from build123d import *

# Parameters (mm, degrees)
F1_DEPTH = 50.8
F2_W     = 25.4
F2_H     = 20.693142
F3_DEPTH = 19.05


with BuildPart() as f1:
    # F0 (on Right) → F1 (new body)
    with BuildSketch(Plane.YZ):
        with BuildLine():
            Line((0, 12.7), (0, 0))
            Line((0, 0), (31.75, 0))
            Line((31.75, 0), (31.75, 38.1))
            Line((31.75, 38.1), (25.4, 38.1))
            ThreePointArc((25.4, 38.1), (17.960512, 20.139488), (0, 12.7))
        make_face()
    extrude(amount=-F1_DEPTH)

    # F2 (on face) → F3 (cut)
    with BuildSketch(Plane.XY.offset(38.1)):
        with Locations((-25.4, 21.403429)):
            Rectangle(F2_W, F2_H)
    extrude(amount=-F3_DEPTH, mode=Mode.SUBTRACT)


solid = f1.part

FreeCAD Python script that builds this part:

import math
import FreeCAD as App
import Part
import Sketcher
from FreeCAD import Vector
Q = App.Units.Quantity


def add_polygon(sketch, points):
    """Adds a closed chain of lines whose ends are joined by coincident constraints."""
    first, n = sketch.GeometryCount, len(points)
    for a, b in zip(points, points[1:] + points[:1]):
        sketch.addGeometry(Part.LineSegment(App.Vector(*a, 0), App.Vector(*b, 0)), False)
    for i in range(n):
        sketch.addConstraint(Sketcher.Constraint("Coincident", first + i, 2, first + (i + 1) % n, 1))

doc = App.newDocument("Part")
body = doc.addObject("PartDesign::Body", "Body")

# Sketch on YZ plane
sketch1 = body.newObject("Sketcher::SketchObject", "Sketch")
sketch1.AttachmentSupport = (doc.getObject("YZ_Plane"), [""])
sketch1.MapMode = "FlatFace"
sketch1.addGeometry([
    Part.LineSegment(Vector(0, 13, 0), Vector(0, 0, 0)),  # 0
    Part.LineSegment(Vector(0, 0, 0), Vector(32, 0, 0)),  # 1
    Part.LineSegment(Vector(32, 0, 0), Vector(32, 38, 0)),  # 2
    Part.LineSegment(Vector(32, 38, 0), Vector(25, 38, 0)),  # 3
    Part.ArcOfCircle(Part.Circle(Vector(0, 38, 0), Vector(0, 0, 1), 25), math.radians(-90), math.radians(0)),  # 4
], False)
sketch1.addConstraint([
    Sketcher.Constraint("Coincident", 0, 2, 1, 1),
    Sketcher.Constraint("Coincident", 1, 2, 2, 1),
    Sketcher.Constraint("Coincident", 2, 2, 3, 1),
    Sketcher.Constraint("Coincident", 3, 2, 4, 2),
    Sketcher.Constraint("Coincident", 4, 1, 0, 1),
    Sketcher.Constraint("Vertical", 0),
    Sketcher.Constraint("Horizontal", 1),
    Sketcher.Constraint("Vertical", 2),
    Sketcher.Constraint("Horizontal", 3),
    Sketcher.Constraint("Coincident", 0, 2, -1, 1),
    Sketcher.Constraint("PointOnObject", 4, 3, -2),
    Sketcher.Constraint("Horizontal", 4, 3, 2, 2),
    Sketcher.Constraint("Radius", 4, Q("1 in")),
    Sketcher.Constraint("DistanceY", 0, 2, 0, 1, Q("0.5 in")),
    Sketcher.Constraint("DistanceX", 1, 1, 1, 2, Q("1.25 in")),
])
pad1 = body.newObject("PartDesign::Pad", "Pad")
pad1.Profile = sketch1
pad1.Length = Q("2 in")
pad1.Reversed = True

# Sketch on XY plane
sketch2 = body.newObject("Sketcher::SketchObject", "Sketch001")
sketch2.AttachmentSupport = (doc.getObject("XY_Plane"), [""])
sketch2.MapMode = "FlatFace"
sketch2.AttachmentOffset = App.Placement(Vector(0, 0, 1.5 * 25.4), App.Rotation())
add_polygon(sketch2, [(-38, 32), (-38, 11), (-13, 11), (-13, 32)])  # lines 0-3
sketch2.addConstraint([
    Sketcher.Constraint("Vertical", 0),
    Sketcher.Constraint("Horizontal", 1),
    Sketcher.Constraint("Vertical", 2),
    Sketcher.Constraint("Horizontal", 3),
    Sketcher.Constraint("DistanceX", 1, 1, 1, 2, Q("1 in")),
    Sketcher.Constraint("DistanceX", 0, 2, -1, 1, Q("1.5 in")),
    Sketcher.Constraint("DistanceY", -1, 1, 2, 2, Q("1.25 in")),
    Sketcher.Constraint("DistanceY", 0, 2, 0, 1, Q("20.693142 mm")),
])
pocket1 = body.newObject("PartDesign::Pocket", "Pocket")
pocket1.Profile = sketch2
pocket1.Length = Q("0.75 in")

doc.recompute()
